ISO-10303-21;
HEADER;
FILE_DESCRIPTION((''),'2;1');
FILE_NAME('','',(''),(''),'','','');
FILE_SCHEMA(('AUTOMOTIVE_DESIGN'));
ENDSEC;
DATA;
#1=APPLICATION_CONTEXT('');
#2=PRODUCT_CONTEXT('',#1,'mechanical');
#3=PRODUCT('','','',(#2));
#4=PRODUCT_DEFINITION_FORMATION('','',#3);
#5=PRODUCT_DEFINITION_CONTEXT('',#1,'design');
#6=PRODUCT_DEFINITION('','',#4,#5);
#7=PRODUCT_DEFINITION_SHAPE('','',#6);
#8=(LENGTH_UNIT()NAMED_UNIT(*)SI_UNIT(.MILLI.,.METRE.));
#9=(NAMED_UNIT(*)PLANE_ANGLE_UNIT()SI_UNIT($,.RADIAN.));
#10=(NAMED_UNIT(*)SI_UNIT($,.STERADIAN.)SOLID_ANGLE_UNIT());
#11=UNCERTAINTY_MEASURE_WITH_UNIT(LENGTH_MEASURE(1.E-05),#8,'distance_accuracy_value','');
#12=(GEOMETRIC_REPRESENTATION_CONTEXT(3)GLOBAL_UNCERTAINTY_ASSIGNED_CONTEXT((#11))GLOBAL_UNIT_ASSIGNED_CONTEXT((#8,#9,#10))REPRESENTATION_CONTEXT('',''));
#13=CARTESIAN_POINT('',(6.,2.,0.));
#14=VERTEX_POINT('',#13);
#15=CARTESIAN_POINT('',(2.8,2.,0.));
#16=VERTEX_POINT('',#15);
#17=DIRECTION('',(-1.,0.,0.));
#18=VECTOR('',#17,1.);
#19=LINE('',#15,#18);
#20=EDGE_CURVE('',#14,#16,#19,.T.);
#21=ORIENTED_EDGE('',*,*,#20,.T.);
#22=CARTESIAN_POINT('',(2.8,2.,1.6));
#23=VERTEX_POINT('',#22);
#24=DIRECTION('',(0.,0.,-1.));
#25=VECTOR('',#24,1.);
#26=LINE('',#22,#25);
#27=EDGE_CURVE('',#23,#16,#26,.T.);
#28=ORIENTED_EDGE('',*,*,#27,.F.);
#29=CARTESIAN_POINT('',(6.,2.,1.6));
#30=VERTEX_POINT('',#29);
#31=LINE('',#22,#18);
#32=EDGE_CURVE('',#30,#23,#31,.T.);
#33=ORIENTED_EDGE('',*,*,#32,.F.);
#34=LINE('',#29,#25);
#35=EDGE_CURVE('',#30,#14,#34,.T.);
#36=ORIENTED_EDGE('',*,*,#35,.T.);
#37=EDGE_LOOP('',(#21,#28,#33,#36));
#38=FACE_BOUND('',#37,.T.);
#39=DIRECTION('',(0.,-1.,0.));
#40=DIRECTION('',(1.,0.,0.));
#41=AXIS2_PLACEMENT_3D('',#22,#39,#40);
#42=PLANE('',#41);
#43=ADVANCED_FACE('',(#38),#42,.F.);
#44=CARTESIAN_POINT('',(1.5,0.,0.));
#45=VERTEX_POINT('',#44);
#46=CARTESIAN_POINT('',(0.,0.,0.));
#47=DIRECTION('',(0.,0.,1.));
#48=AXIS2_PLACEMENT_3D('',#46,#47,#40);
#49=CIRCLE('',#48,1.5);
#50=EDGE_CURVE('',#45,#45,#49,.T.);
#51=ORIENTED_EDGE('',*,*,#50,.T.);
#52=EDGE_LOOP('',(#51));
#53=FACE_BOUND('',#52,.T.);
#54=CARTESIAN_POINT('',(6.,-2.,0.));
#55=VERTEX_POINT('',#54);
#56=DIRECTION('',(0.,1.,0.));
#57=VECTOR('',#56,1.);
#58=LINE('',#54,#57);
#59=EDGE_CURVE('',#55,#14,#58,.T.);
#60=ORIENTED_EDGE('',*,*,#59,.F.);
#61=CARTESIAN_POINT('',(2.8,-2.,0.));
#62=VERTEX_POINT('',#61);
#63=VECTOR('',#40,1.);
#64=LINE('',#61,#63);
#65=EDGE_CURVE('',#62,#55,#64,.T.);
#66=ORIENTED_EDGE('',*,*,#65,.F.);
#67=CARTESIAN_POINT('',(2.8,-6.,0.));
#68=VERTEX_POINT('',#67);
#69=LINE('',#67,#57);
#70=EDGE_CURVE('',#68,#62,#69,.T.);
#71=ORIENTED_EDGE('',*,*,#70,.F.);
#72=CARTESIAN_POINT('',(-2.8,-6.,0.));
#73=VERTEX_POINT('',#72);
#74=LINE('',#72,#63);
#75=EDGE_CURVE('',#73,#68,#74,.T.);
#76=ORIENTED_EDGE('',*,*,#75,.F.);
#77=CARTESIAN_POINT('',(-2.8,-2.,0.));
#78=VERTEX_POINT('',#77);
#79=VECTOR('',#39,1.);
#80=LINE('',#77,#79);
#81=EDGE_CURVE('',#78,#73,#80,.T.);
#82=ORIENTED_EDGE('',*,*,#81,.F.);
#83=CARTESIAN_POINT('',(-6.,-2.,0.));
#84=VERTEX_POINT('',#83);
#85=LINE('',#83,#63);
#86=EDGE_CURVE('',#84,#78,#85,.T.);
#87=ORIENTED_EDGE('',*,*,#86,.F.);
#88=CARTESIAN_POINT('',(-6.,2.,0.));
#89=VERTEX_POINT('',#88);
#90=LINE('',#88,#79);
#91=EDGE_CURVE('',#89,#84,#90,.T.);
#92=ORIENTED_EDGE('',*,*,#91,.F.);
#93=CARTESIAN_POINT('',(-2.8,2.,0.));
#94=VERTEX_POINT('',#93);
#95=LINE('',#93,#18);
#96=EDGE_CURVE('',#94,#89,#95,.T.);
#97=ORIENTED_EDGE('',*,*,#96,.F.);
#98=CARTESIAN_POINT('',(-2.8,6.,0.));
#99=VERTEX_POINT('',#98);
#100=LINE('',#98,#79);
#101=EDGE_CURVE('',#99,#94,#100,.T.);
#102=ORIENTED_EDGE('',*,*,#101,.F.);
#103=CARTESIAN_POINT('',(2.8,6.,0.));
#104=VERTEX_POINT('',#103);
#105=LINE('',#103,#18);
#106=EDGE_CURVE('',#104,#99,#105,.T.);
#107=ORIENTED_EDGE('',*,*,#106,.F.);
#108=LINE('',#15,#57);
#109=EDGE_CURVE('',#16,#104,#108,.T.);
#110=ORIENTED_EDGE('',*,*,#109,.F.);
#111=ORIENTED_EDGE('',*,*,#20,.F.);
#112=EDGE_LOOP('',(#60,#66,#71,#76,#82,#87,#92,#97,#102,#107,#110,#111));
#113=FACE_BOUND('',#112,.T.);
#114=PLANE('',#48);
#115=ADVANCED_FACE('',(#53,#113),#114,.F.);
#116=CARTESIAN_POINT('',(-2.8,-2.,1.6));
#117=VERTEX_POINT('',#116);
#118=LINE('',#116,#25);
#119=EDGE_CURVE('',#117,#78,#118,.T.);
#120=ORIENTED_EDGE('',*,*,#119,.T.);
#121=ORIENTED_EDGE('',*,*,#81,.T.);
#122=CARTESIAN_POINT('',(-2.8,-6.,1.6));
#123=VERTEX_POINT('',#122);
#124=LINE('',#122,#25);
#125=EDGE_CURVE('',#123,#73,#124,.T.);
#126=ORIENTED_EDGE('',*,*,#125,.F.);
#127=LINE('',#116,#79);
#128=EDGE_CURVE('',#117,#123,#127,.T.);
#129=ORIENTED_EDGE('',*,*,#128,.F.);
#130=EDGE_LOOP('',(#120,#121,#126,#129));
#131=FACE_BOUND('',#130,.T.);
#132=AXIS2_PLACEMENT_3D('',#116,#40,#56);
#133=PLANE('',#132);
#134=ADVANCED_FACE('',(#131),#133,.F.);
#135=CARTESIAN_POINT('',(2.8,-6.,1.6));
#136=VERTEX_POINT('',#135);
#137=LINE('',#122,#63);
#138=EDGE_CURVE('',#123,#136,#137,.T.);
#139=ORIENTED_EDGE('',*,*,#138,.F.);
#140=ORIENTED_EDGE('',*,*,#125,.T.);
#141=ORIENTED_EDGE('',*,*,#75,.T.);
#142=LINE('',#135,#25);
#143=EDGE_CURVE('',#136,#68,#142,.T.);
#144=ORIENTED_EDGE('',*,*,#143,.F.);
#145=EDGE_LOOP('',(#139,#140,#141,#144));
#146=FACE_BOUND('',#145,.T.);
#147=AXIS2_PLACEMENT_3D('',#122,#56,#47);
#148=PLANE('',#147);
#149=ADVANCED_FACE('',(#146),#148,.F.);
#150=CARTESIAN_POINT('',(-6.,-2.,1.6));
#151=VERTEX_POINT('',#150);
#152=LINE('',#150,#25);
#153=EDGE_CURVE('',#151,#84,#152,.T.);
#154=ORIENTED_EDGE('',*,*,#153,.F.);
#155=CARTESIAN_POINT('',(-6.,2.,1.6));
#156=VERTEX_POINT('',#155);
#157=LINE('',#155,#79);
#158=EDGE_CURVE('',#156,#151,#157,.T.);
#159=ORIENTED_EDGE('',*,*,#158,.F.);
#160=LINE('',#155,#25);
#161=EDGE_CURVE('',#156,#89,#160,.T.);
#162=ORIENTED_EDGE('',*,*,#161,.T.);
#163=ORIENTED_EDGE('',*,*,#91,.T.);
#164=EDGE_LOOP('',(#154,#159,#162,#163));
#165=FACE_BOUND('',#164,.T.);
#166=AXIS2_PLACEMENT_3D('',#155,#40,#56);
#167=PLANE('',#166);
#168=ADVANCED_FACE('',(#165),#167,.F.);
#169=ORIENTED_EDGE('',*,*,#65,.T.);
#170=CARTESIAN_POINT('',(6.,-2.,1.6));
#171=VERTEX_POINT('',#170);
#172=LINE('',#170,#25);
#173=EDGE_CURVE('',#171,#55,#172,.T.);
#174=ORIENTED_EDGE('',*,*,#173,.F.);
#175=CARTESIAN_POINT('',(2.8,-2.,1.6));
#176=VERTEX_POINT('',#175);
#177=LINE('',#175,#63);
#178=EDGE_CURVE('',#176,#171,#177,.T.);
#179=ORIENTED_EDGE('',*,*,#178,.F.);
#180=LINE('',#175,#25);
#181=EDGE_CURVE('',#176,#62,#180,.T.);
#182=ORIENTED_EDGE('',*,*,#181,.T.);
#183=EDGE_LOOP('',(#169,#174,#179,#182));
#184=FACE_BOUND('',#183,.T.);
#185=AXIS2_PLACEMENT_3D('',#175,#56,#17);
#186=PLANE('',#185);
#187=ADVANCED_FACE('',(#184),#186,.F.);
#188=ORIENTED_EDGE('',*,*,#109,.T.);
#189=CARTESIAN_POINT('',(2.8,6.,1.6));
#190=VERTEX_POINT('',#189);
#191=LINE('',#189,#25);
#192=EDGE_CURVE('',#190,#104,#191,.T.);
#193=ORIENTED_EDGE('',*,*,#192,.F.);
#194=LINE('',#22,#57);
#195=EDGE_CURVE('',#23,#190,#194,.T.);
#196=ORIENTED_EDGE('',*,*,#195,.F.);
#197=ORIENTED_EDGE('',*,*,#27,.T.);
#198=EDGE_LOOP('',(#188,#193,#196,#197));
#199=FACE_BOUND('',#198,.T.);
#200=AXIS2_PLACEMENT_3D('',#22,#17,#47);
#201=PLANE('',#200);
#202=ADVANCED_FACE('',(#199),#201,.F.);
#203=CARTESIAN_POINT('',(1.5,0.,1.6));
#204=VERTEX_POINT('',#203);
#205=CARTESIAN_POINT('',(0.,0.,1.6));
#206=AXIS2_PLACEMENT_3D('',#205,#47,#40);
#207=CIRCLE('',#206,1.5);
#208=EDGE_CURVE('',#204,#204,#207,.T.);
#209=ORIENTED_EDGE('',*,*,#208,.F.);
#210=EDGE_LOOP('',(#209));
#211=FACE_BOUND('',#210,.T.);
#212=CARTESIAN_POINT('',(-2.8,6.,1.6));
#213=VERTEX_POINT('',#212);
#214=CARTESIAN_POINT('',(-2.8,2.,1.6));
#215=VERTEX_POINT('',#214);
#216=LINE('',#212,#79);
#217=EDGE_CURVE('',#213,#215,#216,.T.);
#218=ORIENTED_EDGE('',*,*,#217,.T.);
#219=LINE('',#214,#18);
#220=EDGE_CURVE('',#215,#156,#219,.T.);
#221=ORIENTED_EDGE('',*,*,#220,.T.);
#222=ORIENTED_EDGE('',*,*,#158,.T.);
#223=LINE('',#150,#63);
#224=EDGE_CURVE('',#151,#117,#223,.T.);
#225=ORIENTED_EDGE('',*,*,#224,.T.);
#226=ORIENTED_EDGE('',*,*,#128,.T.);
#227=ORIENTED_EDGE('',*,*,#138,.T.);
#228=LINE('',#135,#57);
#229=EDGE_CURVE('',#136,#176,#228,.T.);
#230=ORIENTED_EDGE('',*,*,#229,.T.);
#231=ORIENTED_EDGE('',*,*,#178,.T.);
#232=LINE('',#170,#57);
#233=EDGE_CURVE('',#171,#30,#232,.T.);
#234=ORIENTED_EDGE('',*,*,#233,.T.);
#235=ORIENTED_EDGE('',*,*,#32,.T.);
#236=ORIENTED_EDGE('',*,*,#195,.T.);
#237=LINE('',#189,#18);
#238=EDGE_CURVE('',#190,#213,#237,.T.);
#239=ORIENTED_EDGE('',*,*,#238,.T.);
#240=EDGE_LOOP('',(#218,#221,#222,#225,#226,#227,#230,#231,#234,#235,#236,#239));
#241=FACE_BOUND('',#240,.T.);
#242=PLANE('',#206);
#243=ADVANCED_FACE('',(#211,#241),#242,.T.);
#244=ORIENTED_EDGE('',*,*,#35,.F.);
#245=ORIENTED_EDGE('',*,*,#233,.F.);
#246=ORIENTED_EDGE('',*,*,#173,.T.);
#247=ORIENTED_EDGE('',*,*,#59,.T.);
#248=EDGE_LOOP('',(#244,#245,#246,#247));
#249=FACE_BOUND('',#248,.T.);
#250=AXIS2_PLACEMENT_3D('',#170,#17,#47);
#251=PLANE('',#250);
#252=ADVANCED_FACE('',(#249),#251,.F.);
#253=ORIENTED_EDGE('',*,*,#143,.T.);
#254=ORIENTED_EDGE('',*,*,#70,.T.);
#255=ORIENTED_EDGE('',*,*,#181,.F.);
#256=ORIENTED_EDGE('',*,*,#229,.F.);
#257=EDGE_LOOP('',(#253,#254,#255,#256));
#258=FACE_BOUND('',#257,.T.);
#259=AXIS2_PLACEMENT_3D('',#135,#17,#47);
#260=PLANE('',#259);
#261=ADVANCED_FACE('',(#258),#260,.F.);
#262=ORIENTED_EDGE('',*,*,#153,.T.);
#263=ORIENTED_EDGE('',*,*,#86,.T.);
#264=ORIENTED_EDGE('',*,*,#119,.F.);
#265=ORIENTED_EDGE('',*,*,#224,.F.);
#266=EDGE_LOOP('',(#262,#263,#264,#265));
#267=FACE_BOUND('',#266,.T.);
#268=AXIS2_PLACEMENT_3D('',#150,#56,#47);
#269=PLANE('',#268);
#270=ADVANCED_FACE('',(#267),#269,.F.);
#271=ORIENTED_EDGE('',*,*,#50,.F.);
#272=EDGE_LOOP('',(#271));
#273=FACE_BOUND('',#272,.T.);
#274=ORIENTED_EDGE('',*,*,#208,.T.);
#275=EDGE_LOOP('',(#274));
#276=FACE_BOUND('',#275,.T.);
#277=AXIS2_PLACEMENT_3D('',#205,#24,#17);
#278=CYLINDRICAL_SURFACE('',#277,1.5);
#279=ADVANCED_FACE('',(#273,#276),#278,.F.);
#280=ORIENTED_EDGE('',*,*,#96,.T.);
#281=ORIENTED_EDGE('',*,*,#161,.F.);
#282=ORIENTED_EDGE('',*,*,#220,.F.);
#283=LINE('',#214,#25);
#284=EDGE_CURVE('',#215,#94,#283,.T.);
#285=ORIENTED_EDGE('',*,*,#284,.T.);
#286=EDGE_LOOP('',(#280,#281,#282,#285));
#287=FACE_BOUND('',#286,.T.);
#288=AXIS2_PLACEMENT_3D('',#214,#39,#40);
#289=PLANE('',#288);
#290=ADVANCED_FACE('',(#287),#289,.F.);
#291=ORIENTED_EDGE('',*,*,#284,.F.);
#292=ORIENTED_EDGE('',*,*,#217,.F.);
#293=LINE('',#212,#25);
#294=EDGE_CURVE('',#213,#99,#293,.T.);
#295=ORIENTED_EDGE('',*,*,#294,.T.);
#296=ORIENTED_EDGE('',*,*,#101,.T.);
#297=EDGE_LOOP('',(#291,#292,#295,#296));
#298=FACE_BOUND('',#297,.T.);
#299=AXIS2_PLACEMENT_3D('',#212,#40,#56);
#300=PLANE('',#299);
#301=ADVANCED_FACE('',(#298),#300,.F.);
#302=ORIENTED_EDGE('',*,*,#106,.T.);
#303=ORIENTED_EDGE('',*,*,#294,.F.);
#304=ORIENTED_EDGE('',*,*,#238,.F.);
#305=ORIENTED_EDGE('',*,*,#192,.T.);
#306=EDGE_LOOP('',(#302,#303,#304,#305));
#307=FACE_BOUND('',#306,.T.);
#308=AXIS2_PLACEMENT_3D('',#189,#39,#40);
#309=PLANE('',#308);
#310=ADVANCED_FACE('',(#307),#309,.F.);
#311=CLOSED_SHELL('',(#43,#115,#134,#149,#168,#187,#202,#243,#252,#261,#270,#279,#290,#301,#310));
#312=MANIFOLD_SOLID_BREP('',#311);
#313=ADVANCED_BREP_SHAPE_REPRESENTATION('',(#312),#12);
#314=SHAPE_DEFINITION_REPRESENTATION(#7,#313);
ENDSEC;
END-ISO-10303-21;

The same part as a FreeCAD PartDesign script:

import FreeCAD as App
import Part
import Sketcher

doc = App.newDocument("Part")
body = doc.addObject("PartDesign::Body", "Body")

# Sketch on XY plane
sketch1 = body.newObject("Sketcher::SketchObject", "Sketch")
sketch1.AttachmentSupport = (doc.getObject("XY_Plane"), [""])
sketch1.MapMode = "FlatFace"
sketch1.addGeometry([
    Part.LineSegment(App.Vector(-2.8, -6, 0), App.Vector(2.8, -6, 0)),  # 0
    Part.LineSegment(App.Vector(2.8, -6, 0), App.Vector(2.8, -2, 0)),  # 1
    Part.LineSegment(App.Vector(2.8, -2, 0), App.Vector(6, -2, 0)),  # 2
    Part.LineSegment(App.Vector(6, -2, 0), App.Vector(6, 2, 0)),  # 3
    Part.LineSegment(App.Vector(6, 2, 0), App.Vector(2.8, 2, 0)),  # 4
    Part.LineSegment(App.Vector(2.8, 2, 0), App.Vector(2.8, 6, 0)),  # 5
    Part.LineSegment(App.Vector(2.8, 6, 0), App.Vector(-2.8, 6, 0)),  # 6
    Part.LineSegment(App.Vector(-2.8, 6, 0), App.Vector(-2.8, 2, 0)),  # 7
    Part.LineSegment(App.Vector(-2.8, 2, 0), App.Vector(-6, 2, 0)),  # 8
    Part.LineSegment(App.Vector(-6, 2, 0), App.Vector(-6, -2, 0)),  # 9
    Part.LineSegment(App.Vector(-6, -2, 0), App.Vector(-2.8, -2, 0)),  # 10
    Part.LineSegment(App.Vector(-2.8, -2, 0), App.Vector(-2.8, -6, 0)),  # 11
    Part.Circle(App.Vector(0, 0, 0), App.Vector(0, 0, 1), 1.5),  # 12
], False)
sketch1.addConstraint([
    Sketcher.Constraint("Coincident", 0, 2, 1, 1),
    Sketcher.Constraint("Coincident", 1, 2, 2, 1),
    Sketcher.Constraint("Coincident", 2, 2, 3, 1),
    Sketcher.Constraint("Coincident", 3, 2, 4, 1),
    Sketcher.Constraint("Coincident", 4, 2, 5, 1),
    Sketcher.Constraint("Coincident", 5, 2, 6, 1),
    Sketcher.Constraint("Coincident", 6, 2, 7, 1),
    Sketcher.Constraint("Coincident", 7, 2, 8, 1),
    Sketcher.Constraint("Coincident", 8, 2, 9, 1),
    Sketcher.Constraint("Coincident", 9, 2, 10, 1),
    Sketcher.Constraint("Coincident", 10, 2, 11, 1),
    Sketcher.Constraint("Coincident", 11, 2, 0, 1),
    Sketcher.Constraint("Horizontal", 0),
    Sketcher.Constraint("Vertical", 1),
    Sketcher.Constraint("Horizontal", 2),
    Sketcher.Constraint("Vertical", 3),
    Sketcher.Constraint("Horizontal", 4),
    Sketcher.Constraint("Vertical", 5),
    Sketcher.Constraint("Horizontal", 6),
    Sketcher.Constraint("Vertical", 7),
    Sketcher.Constraint("Horizontal", 8),
    Sketcher.Constraint("Vertical", 9),
    Sketcher.Constraint("Horizontal", 10),
    Sketcher.Constraint("Vertical", 11),
    Sketcher.Constraint("Coincident", 12, 3, -1, 1),
    Sketcher.Constraint("Symmetric", 0, 2, 6, 2, -1, 1),
    Sketcher.Constraint("Symmetric", 2, 2, 8, 2, -1, 1),
    Sketcher.Constraint("Symmetric", 4, 2, 10, 2, -1, 1),
    Sketcher.Constraint("Symmetric", 4, 2, 7, 2, -2),
    Sketcher.Constraint("Equal", 1, 3),
    Sketcher.Constraint("Diameter", 12, 3.0),
    Sketcher.Constraint("DistanceY", 1, 1, 1, 2, 4.0),
    Sketcher.Constraint("DistanceX", 0, 1, 0, 2, 5.6),
    Sketcher.Constraint("DistanceX", 2, 1, 2, 2, 3.2),
])
pad1 = body.newObject("PartDesign::Pad", "Pad")
pad1.Profile = sketch1
pad1.Length = 1.6

doc.recompute()
